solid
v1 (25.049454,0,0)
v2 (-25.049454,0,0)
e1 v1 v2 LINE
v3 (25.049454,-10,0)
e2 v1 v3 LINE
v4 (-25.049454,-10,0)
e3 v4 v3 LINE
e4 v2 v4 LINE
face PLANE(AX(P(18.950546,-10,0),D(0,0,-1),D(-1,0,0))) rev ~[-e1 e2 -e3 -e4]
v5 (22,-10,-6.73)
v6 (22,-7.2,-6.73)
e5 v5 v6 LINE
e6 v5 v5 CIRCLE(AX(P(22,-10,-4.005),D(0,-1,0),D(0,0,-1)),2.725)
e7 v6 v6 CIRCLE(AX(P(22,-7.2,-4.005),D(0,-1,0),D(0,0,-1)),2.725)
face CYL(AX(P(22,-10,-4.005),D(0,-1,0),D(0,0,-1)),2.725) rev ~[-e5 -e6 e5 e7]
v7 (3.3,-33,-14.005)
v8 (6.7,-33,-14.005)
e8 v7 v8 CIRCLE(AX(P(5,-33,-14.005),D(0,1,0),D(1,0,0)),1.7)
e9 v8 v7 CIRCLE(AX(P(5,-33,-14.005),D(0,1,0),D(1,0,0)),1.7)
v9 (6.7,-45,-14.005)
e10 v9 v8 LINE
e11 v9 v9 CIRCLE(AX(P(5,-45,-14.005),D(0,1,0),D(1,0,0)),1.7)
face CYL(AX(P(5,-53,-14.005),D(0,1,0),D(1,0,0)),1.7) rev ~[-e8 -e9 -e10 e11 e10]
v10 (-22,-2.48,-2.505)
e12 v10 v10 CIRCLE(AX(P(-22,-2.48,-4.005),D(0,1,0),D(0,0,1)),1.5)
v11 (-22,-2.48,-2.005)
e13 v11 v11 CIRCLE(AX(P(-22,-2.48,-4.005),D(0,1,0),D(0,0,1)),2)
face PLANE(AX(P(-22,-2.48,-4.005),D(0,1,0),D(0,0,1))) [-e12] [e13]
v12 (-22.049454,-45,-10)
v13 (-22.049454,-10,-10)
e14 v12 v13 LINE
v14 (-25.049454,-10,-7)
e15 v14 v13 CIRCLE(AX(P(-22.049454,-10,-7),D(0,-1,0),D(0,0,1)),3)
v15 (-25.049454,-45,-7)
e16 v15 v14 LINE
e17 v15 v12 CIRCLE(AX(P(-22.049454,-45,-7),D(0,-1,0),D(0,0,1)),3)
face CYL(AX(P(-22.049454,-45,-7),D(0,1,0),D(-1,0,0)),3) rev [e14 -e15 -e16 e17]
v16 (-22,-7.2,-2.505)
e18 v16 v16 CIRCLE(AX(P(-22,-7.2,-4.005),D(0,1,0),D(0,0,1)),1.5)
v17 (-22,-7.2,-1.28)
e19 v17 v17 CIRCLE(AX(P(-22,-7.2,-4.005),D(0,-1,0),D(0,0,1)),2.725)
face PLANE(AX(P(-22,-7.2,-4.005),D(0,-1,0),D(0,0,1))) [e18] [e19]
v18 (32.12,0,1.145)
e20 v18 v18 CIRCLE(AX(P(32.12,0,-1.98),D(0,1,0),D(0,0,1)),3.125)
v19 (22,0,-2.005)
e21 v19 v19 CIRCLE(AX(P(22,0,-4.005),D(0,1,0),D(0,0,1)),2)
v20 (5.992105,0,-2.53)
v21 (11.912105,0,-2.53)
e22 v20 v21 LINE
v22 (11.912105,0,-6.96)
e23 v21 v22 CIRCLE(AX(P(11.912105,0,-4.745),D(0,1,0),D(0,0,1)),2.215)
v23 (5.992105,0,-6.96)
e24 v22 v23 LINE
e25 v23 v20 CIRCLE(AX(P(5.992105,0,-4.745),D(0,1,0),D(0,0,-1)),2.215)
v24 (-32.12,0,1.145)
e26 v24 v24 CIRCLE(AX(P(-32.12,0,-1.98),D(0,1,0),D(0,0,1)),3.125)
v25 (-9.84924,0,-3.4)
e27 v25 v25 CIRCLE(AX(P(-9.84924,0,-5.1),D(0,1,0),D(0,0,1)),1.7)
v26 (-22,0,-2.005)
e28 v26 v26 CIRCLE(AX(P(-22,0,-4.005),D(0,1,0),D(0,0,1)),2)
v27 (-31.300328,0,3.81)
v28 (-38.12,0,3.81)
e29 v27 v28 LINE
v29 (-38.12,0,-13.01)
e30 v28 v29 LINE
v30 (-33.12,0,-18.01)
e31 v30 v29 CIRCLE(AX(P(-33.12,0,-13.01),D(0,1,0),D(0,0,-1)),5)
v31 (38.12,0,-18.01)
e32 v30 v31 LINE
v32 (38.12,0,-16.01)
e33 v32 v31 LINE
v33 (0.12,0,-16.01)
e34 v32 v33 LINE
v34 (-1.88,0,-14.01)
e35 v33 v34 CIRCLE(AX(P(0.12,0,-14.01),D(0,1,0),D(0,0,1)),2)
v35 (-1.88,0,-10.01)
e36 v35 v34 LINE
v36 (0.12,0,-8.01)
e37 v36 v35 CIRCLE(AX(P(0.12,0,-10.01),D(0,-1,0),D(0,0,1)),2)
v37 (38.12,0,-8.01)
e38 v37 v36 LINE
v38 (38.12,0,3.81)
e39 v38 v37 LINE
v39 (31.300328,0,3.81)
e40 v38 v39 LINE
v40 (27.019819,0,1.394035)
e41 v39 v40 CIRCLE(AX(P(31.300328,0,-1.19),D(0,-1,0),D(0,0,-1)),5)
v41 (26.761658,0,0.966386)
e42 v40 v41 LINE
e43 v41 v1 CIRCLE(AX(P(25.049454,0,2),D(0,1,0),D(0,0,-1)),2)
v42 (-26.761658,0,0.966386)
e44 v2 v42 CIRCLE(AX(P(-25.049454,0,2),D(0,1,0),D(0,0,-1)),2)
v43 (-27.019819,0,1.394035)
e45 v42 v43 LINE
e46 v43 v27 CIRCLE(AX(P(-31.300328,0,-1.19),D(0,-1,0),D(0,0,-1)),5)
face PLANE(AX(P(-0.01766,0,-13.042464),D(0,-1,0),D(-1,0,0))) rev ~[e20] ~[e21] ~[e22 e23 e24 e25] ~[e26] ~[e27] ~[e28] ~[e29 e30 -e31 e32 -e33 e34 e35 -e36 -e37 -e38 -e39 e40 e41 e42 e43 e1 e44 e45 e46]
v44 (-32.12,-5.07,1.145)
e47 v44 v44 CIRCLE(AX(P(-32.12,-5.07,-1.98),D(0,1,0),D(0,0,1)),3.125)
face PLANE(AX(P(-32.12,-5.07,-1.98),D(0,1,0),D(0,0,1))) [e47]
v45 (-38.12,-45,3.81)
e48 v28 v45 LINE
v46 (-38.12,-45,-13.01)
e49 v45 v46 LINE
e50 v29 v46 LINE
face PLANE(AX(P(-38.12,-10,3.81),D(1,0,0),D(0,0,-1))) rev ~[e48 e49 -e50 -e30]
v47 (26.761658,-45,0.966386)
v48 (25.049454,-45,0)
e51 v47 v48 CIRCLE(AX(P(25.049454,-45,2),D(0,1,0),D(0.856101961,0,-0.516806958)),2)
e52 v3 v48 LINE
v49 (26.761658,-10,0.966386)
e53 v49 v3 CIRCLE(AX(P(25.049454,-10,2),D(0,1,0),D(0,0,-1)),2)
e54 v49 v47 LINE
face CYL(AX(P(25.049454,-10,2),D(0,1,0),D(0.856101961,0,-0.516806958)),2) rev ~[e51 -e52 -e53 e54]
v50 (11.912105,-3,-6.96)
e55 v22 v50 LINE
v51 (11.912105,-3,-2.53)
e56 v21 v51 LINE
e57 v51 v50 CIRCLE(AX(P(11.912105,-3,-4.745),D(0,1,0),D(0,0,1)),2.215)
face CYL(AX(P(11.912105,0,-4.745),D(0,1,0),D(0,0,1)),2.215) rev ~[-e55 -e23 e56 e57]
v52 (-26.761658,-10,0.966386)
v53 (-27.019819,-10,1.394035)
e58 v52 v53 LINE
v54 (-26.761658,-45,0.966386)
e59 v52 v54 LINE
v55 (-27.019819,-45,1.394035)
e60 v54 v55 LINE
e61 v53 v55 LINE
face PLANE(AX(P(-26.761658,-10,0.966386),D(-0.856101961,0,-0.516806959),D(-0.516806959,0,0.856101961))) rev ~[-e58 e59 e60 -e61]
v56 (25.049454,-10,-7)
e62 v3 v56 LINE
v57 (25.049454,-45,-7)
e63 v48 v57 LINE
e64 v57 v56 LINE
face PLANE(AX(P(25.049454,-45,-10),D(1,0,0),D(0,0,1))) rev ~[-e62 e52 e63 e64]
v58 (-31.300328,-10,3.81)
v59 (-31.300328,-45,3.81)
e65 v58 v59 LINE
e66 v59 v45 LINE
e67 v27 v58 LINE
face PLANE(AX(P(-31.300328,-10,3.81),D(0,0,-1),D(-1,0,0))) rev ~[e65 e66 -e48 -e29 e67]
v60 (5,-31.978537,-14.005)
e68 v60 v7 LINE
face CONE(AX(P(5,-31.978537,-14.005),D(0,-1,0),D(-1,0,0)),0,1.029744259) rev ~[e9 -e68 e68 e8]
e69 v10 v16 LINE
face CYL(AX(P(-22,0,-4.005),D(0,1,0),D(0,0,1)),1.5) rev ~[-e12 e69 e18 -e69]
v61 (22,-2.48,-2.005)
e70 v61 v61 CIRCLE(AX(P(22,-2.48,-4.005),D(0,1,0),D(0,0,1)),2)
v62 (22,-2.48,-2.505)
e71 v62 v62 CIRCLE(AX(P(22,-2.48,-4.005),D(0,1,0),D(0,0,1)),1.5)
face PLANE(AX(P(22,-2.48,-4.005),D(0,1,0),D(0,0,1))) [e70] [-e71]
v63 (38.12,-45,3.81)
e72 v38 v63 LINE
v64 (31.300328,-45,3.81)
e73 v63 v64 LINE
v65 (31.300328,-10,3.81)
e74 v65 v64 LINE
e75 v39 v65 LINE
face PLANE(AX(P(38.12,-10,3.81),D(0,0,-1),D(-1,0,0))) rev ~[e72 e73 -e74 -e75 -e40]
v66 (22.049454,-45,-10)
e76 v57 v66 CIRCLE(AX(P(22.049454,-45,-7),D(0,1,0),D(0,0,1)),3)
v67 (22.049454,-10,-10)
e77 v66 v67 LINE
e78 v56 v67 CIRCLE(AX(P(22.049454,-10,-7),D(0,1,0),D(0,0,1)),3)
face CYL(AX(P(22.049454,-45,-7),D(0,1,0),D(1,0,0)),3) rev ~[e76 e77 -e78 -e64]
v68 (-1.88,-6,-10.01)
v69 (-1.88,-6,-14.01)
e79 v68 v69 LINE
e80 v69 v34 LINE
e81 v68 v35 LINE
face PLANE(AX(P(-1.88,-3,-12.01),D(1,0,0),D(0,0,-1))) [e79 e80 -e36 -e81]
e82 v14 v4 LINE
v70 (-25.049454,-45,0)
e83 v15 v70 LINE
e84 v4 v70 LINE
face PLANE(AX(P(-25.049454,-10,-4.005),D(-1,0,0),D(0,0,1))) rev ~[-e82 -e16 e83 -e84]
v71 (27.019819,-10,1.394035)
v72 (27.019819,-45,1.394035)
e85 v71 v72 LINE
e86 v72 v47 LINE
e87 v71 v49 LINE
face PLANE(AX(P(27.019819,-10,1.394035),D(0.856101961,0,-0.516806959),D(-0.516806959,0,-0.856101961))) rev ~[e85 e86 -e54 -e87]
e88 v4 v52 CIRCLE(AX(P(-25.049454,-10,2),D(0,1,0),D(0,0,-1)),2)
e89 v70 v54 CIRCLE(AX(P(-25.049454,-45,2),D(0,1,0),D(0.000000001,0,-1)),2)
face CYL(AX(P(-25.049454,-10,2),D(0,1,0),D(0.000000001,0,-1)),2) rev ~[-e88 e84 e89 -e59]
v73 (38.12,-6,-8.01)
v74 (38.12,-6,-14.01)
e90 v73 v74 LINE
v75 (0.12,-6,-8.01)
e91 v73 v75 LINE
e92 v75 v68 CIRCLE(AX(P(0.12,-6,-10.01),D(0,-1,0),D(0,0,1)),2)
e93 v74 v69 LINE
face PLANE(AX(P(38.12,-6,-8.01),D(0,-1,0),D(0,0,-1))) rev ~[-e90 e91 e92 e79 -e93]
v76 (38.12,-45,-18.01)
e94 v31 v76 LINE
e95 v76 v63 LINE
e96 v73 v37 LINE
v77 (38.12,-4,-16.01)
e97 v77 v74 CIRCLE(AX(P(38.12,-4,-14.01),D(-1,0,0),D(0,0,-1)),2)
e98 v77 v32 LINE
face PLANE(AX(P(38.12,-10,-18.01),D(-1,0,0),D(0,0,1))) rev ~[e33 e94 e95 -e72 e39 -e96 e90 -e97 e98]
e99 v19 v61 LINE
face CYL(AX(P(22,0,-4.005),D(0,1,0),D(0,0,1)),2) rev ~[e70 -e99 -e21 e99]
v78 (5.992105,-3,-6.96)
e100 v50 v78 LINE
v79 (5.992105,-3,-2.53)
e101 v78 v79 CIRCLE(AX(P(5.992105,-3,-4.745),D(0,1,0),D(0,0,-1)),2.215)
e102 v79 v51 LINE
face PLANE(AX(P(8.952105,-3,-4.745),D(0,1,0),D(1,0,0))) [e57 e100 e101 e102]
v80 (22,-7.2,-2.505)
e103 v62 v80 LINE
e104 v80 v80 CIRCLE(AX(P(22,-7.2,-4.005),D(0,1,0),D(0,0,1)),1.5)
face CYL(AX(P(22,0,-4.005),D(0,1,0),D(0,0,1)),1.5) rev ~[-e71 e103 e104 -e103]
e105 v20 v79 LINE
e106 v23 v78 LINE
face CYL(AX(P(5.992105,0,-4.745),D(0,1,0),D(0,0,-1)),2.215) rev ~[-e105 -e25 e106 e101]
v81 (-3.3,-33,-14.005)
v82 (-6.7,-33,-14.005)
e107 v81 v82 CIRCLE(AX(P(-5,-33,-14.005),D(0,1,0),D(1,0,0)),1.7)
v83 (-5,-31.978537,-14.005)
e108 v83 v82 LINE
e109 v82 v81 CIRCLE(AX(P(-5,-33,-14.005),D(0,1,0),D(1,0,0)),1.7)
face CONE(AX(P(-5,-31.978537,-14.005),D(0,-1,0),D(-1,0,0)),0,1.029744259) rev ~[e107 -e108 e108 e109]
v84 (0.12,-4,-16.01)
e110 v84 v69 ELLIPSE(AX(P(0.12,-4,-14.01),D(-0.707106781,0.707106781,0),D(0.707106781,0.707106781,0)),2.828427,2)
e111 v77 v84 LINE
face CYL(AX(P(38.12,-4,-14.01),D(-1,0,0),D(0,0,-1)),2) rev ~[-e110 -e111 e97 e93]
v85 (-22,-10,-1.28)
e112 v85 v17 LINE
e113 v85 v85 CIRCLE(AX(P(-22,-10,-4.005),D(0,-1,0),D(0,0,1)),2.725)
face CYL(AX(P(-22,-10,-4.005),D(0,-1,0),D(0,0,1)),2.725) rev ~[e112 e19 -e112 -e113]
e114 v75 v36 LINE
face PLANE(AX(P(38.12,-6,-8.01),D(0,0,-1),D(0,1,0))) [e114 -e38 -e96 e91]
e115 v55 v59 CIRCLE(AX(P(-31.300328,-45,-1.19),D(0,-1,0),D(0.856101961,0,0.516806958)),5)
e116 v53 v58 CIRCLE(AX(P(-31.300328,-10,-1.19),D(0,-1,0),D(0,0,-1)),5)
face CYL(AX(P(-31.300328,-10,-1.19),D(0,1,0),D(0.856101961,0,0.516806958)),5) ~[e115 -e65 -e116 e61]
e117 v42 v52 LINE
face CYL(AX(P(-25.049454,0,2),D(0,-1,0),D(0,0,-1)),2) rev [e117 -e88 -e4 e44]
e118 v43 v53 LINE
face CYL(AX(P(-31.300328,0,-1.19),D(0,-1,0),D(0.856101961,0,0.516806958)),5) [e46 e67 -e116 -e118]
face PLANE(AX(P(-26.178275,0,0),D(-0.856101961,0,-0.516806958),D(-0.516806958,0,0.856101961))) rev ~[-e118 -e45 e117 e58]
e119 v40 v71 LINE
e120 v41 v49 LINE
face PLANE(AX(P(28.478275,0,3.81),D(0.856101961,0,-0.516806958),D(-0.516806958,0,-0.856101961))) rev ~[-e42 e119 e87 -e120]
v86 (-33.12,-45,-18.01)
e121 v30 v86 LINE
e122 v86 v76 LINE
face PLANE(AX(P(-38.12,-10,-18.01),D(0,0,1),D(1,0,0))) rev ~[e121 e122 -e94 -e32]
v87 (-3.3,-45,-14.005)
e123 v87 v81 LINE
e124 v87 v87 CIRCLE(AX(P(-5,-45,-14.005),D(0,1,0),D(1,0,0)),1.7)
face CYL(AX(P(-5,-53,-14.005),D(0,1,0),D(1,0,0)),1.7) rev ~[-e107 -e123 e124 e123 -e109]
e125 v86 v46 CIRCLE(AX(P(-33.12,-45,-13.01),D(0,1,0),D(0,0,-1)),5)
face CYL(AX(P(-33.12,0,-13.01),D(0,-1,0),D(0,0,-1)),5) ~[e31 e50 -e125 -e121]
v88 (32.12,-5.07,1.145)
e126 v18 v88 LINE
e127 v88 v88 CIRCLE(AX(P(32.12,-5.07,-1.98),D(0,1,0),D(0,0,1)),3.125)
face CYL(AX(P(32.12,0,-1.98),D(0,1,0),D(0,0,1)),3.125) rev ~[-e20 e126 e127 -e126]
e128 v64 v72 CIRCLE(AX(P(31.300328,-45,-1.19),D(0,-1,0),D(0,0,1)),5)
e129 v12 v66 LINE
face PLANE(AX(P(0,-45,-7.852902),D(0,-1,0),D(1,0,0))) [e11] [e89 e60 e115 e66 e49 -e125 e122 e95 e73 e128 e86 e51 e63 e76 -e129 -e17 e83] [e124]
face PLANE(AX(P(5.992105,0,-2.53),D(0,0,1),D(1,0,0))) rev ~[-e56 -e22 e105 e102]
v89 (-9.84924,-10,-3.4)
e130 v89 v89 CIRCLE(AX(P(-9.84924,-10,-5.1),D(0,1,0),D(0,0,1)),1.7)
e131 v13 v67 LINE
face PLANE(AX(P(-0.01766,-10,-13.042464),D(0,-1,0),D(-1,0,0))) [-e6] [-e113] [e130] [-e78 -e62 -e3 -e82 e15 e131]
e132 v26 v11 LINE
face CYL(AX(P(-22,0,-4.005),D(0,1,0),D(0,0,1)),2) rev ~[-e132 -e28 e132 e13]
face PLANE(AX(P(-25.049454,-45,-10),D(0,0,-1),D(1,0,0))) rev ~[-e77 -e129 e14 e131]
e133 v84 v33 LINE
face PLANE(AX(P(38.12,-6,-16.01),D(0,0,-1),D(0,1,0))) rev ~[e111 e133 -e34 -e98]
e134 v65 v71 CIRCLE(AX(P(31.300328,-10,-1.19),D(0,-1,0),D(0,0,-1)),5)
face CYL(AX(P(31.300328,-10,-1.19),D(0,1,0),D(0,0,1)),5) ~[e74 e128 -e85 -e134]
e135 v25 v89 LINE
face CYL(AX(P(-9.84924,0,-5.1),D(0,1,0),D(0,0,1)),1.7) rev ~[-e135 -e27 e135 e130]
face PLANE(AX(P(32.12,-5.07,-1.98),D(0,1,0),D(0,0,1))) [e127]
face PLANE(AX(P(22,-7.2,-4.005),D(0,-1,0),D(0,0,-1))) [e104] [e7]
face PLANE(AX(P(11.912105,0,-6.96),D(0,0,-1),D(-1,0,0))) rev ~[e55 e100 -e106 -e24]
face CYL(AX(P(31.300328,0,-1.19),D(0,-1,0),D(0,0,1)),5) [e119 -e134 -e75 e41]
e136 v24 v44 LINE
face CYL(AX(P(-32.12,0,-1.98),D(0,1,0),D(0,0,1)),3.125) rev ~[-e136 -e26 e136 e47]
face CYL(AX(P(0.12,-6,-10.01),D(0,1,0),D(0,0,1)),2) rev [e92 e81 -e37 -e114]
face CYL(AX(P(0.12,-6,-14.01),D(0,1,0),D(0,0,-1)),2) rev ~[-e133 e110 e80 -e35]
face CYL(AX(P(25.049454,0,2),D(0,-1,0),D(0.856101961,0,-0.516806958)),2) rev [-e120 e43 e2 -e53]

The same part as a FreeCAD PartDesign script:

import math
import FreeCAD as App
import Part
import Sketcher
from FreeCAD import Vector


def edges_at(feature, points):
    """Names of the edges that pass closest to the given points."""
    edges = feature.Shape.Edges
    near = lambda p: min(range(len(edges)), key=lambda i: edges[i].distToShape(Part.Vertex(*p))[0])
    return sorted({f"Edge{near(p) + 1}" for p in points})

doc = App.newDocument("Part")
body = doc.addObject("PartDesign::Body", "Body")

sketch1 = body.newObject("Sketcher::SketchObject", "Sketch")
sketch1.AttachmentSupport = (doc.getObject("XZ_Plane"), [""])
sketch1.MapMode = "FlatFace"
sketch1.addGeometry([
    Part.ArcOfCircle(Part.Circle(Vector(-9.8, -5.1, 0), Vector(0, 0, 1), 4.2), math.radians(-112), math.radians(-68)),
    Part.ArcOfCircle(Part.Circle(Vector(-16.4, -21.4, 0), Vector(0, 0, 1), 13.4), math.radians(68), math.radians(90)),
    Part.LineSegment(Vector(-16.4, -8, 0), Vector(-38.1, -8, 0)),
    Part.LineSegment(Vector(-38.1, -8, 0), Vector(-38.1, 3.8, 0)),
    Part.LineSegment(Vector(-38.1, 3.8, 0), Vector(-28.5, 3.8, 0)),
    Part.LineSegment(Vector(-28.5, 3.8, 0), Vector(-26.2, 0, 0)),
    Part.LineSegment(Vector(-26.2, 0, 0), Vector(26.2, 0, 0)),
    Part.LineSegment(Vector(26.2, 0, 0), Vector(28.5, 3.8, 0)),
    Part.LineSegment(Vector(28.5, 3.8, 0), Vector(38.1, 3.8, 0)),
    Part.LineSegment(Vector(38.1, 3.8, 0), Vector(38.1, -8, 0)),
    Part.LineSegment(Vector(38.1, -8, 0), Vector(-3.3, -8, 0)),
    Part.ArcOfCircle(Part.Circle(Vector(-3.3, -21.4, 0), Vector(0, 0, 1), 13.4), math.radians(90), math.radians(112)),
], False)
sketch1.addConstraint([
    Sketcher.Constraint("Tangent", 0, 1, 1, 1),
    Sketcher.Constraint("Tangent", 1, 2, 2, 1),
    Sketcher.Constraint("Coincident", 2, 2, 3, 1),
    Sketcher.Constraint("Coincident", 3, 2, 4, 1),
    Sketcher.Constraint("Coincident", 4, 2, 5, 1),
    Sketcher.Constraint("Coincident", 5, 2, 6, 1),
    Sketcher.Constraint("Coincident", 6, 2, 7, 1),
    Sketcher.Constraint("Coincident", 7, 2, 8, 1),
    Sketcher.Constraint("Coincident", 8, 2, 9, 1),
    Sketcher.Constraint("Coincident", 9, 2, 10, 1),
    Sketcher.Constraint("Tangent", 10, 2, 11, 1),
    Sketcher.Constraint("Tangent", 11, 2, 0, 2),
    Sketcher.Constraint("Horizontal", 2),
    Sketcher.Constraint("Vertical", 3),
    Sketcher.Constraint("Horizontal", 4),
    Sketcher.Constraint("Horizontal", 6),
    Sketcher.Constraint("Horizontal", 8),
    Sketcher.Constraint("Vertical", 9),
    Sketcher.Constraint("Horizontal", 10),
    Sketcher.Constraint("Equal", 1, 11),
    Sketcher.Constraint("Symmetric", 5, 2, 6, 2, -1, 1),
    Sketcher.Constraint("Symmetric", 4, 2, 7, 2, -2),
    Sketcher.Constraint("Symmetric", 2, 2, 9, 2, -2),
    Sketcher.Constraint("Radius", 0, 4.18),
    Sketcher.Constraint("DistanceX", 1, 3, 0, 1, 5.0),
    Sketcher.Constraint("DistanceY", 3, 1, 3, 2, 11.82),
    Sketcher.Constraint("DistanceY", 0, 3, -1, 1, 5.1),
    Sketcher.Constraint("DistanceX", 4, 2, 5, 2, 2.3),
    Sketcher.Constraint("DistanceY", 1, 2, -1, 1, 8.01),
    Sketcher.Constraint("DistanceX", 2, 2, -1, 1, 38.12),
    Sketcher.Constraint("DistanceX", 6, 1, 6, 2, 52.35655),
    Sketcher.Constraint("DistanceX", 2, 2, 2, 1, 21.710755),
])
pad1 = body.newObject("PartDesign::Pad", "Pad")
pad1.Profile = sketch1
pad1.Length = 10
doc.recompute()

fillet = body.newObject("PartDesign::Fillet", "Fillet")
fillet.Base = (pad1, edges_at(pad1, [(28.478, -5, 3.81), (-28.478, -5, 3.81)]))
fillet.Radius = 5
doc.recompute()

fillet2 = body.newObject("PartDesign::Fillet", "Fillet001")
fillet2.Base = (fillet, edges_at(fillet, [(26.178, -5, 0), (-26.178, -5, 0)]))
fillet2.Radius = 2

sketch2 = body.newObject("Sketcher::SketchObject", "Sketch001")
sketch2.AttachmentSupport = (doc.getObject("XZ_Plane"), [""])
sketch2.MapMode = "FlatFace"
sketch2.addGeometry([
    Part.Circle(Vector(32.1, -2, 0), Vector(0, 0, 1), 3.1),
    Part.Circle(Vector(-32.1, -2, 0), Vector(0, 0, 1), 3.1),
], False)
sketch2.addConstraint([
    Sketcher.Constraint("Equal", 0, 1),
    Sketcher.Constraint("Symmetric", 0, 3, 1, 3, -2),
    Sketcher.Constraint("Diameter", 0, 6.25),
    Sketcher.Constraint("DistanceX", -1, 1, 0, 3, 32.12),
    Sketcher.Constraint("DistanceY", 0, 3, -1, 1, 1.98),
])
pocket1 = body.newObject("PartDesign::Pocket", "Pocket")
pocket1.Profile = sketch2
pocket1.Length = 5.07
pocket1.Reversed = True

sketch3 = body.newObject("Sketcher::SketchObject", "Sketch002")
sketch3.AttachmentSupport = (doc.getObject("XZ_Plane"), [""])
sketch3.MapMode = "FlatFace"
sketch3.addGeometry(Part.Circle(Vector(-9.8, -5.1, 0), Vector(0, 0, 1), 1.7), False)
sketch3.addConstraint([
    Sketcher.Constraint("Diameter", 0, 3.4),
    Sketcher.Constraint("DistanceY", 0, 3, -1, 1, 5.1),
    Sketcher.Constraint("DistanceX", 0, 3, -1, 1, 9.84924),
])
pocket2 = body.newObject("PartDesign::Pocket", "Pocket001")
pocket2.Profile = sketch3
pocket2.Length = 10
pocket2.Reversed = True

sketch4 = body.newObject("Sketcher::SketchObject", "Sketch003")
sketch4.AttachmentSupport = (doc.getObject("XZ_Plane"), [""])
sketch4.MapMode = "FlatFace"
sketch4.addGeometry([
    Part.LineSegment(Vector(6, -2.5, 0), Vector(11.9, -2.5, 0)),
    Part.ArcOfCircle(Part.Circle(Vector(11.9, -4.7, 0), Vector(0, 0, 1), 2.2), math.radians(-90), math.radians(90)),
    Part.LineSegment(Vector(11.9, -7, 0), Vector(6, -7, 0)),
    Part.ArcOfCircle(Part.Circle(Vector(6, -4.7, 0), Vector(0, 0, 1), 2.2), math.radians(90), math.radians(270)),
], False)
sketch4.addConstraint([
    Sketcher.Constraint("Tangent", 0, 2, 1, 2),
    Sketcher.Constraint("Tangent", 1, 1, 2, 1),
    Sketcher.Constraint("Tangent", 2, 2, 3, 2),
    Sketcher.Constraint("Tangent", 3, 1, 0, 1),
    Sketcher.Constraint("Horizontal", 0),
    Sketcher.Constraint("Horizontal", 2),
    Sketcher.Constraint("Radius", 1, 2.215),
    Sketcher.Constraint("DistanceX", 0, 1, 0, 2, 5.92),
    Sketcher.Constraint("DistanceY", 0, 2, -1, 1, 2.53),
    Sketcher.Constraint("DistanceX", -1, 1, 1, 3, 11.912105),
])
pocket3 = body.newObject("PartDesign::Pocket", "Pocket002")
pocket3.Profile = sketch4
pocket3.Length = 3
pocket3.Reversed = True

sketch5 = body.newObject("Sketcher::SketchObject", "Sketch004")
sketch5.AttachmentSupport = (doc.getObject("XZ_Plane"), [""])
sketch5.MapMode = "FlatFace"
sketch5.addGeometry([
    Part.Circle(Vector(-22, -4, 0), Vector(0, 0, 1), 2),
    Part.Circle(Vector(22, -4, 0), Vector(0, 0, 1), 2),
], False)
sketch5.addConstraint([
    Sketcher.Constraint("Equal", 0, 1),
    Sketcher.Constraint("Symmetric", 0, 3, 1, 3, -2),
    Sketcher.Constraint("Diameter", 0, 4.0),
    Sketcher.Constraint("DistanceX", 0, 3, -1, 1, 22.0),
    Sketcher.Constraint("DistanceY", 0, 3, -1, 1, 4.005),
])
pocket4 = body.newObject("PartDesign::Pocket", "Pocket003")
pocket4.Profile = sketch5
pocket4.Length = 2.48
pocket4.Reversed = True

sketch6 = body.newObject("Sketcher::SketchObject", "Sketch005")
sketch6.AttachmentSupport = (doc.getObject("XZ_Plane"), [""])
sketch6.MapMode = "FlatFace"
sketch6.addGeometry([
    Part.Circle(Vector(-22, -4, 0), Vector(0, 0, 1), 1.5),
    Part.Circle(Vector(22, -4, 0), Vector(0, 0, 1), 1.5),
], False)
sketch6.addConstraint([
    Sketcher.Constraint("Equal", 0, 1),
    Sketcher.Constraint("Symmetric", 0, 3, 1, 3, -2),
    Sketcher.Constraint("Diameter", 0, 3.0),
    Sketcher.Constraint("DistanceX", 0, 3, -1, 1, 22.0),
    Sketcher.Constraint("DistanceY", 0, 3, -1, 1, 4.005),
])
pocket5 = body.newObject("PartDesign::Pocket", "Pocket004")
pocket5.Profile = sketch6
pocket5.Length = 10
pocket5.Reversed = True

sketch7 = body.newObject("Sketcher::SketchObject", "Sketch006")
sketch7.AttachmentSupport = (doc.getObject("XZ_Plane"), [""])
sketch7.MapMode = "FlatFace"
sketch7.AttachmentOffset = App.Placement(Vector(0, 0, 10), App.Rotation())
sketch7.addGeometry([
    Part.Circle(Vector(22, -4, 0), Vector(0, 0, 1), 2.7),
    Part.Circle(Vector(-22, -4, 0), Vector(0, 0, 1), 2.7),
], False)
sketch7.addConstraint([
    Sketcher.Constraint("Equal", 0, 1),
    Sketcher.Constraint("Symmetric", 0, 3, 1, 3, -2),
    Sketcher.Constraint("Diameter", 0, 5.45),
    Sketcher.Constraint("DistanceX", -1, 1, 0, 3, 22.0),
    Sketcher.Constraint("DistanceY", 0, 3, -1, 1, 4.005),
])
pocket6 = body.newObject("PartDesign::Pocket", "Pocket005")
pocket6.Profile = sketch7
pocket6.Length = 2.8

sketch8 = body.newObject("Sketcher::SketchObject", "Sketch007")
sketch8.AttachmentSupport = (doc.getObject("XZ_Plane"), [""])
sketch8.MapMode = "FlatFace"
sketch8.addGeometry([
    Part.LineSegment(Vector(-38.1, -18, 0), Vector(-38.1, -8, 0)),
    Part.LineSegment(Vector(-38.1, -8, 0), Vector(-16.4, -8, 0)),
    Part.ArcOfCircle(Part.Circle(Vector(-16.4, -21.4, 0), Vector(0, 0, 1), 13.4), math.radians(68), math.radians(90)),
    Part.ArcOfCircle(Part.Circle(Vector(-9.8, -5.1, 0), Vector(0, 0, 1), 4.2), math.radians(-112), math.radians(-68)),
    Part.ArcOfCircle(Part.Circle(Vector(-3.3, -21.4, 0), Vector(0, 0, 1), 13.4), math.radians(90), math.radians(112)),
    Part.LineSegment(Vector(-3.3, -8, 0), Vector(38.1, -8, 0)),
    Part.LineSegment(Vector(38.1, -8, 0), Vector(38.1, -18, 0)),
    Part.LineSegment(Vector(38.1, -18, 0), Vector(-38.1, -18, 0)),
], False)
sketch8.addConstraint([
    Sketcher.Constraint("Coincident", 0, 2, 1, 1),
    Sketcher.Constraint("Tangent", 1, 2, 2, 2),
    Sketcher.Constraint("Tangent", 2, 1, 3, 1),
    Sketcher.Constraint("Tangent", 3, 2, 4, 2),
    Sketcher.Constraint("Tangent", 4, 1, 5, 1),
    Sketcher.Constraint("Coincident", 5, 2, 6, 1),
    Sketcher.Constraint("Coincident", 6, 2, 7, 1),
    Sketcher.Constraint("Coincident", 7, 2, 0, 1),
    Sketcher.Constraint("Vertical", 0),
    Sketcher.Constraint("Horizontal", 1),
    Sketcher.Constraint("Horizontal", 5),
    Sketcher.Constraint("Vertical", 6),
    Sketcher.Constraint("Horizontal", 7),
    Sketcher.Constraint("Equal", 2, 4),
    Sketcher.Constraint("Symmetric", 0, 2, 5, 2, -2),
    Sketcher.Constraint("DistanceY", 0, 1, 0, 2, 10.0),
    Sketcher.Constraint("Radius", 3, 4.18),
    Sketcher.Constraint("DistanceX", 1, 2, 2, 1, 5.0),
    Sketcher.Constraint("DistanceX", 7, 2, 7, 1, 76.24),
    Sketcher.Constraint("DistanceY", 3, 3, -1, 1, 5.1),
    Sketcher.Constraint("DistanceY", 0, 2, -1, 1, 8.01),
    Sketcher.Constraint("DistanceX", 1, 1, 1, 2, 21.710755),
])
pad2 = body.newObject("PartDesign::Pad", "Pad001")
pad2.Profile = sketch8
pad2.Length = 10

sketch9 = body.newObject("Sketcher::SketchObject", "Sketch008")
sketch9.AttachmentSupport = (doc.getObject("XZ_Plane"), [""])
sketch9.MapMode = "FlatFace"
sketch9.AttachmentOffset = App.Placement(Vector(0, 0, 10), App.Rotation())
sketch9.addGeometry([
    Part.LineSegment(Vector(18.95, 0, 0), Vector(-18.95, 0, 0)),
    Part.LineSegment(Vector(-18.95, 0, 0), Vector(-18.95, -4, 0)),
    Part.ArcOfCircle(Part.Circle(Vector(-22, -4, 0), Vector(0, 0, 1), 3.05), math.radians(180), math.radians(360)),
    Part.LineSegment(Vector(-25.05, -4, 0), Vector(-25.05, 0, 0)),
    Part.ArcOfCircle(Part.Circle(Vector(-25.05, 2, 0), Vector(0, 0, 1), 2), math.radians(-149), math.radians(-90)),
    Part.LineSegment(Vector(-26.76, 0.97, 0), Vector(-27.02, 1.39, 0)),
    Part.ArcOfCircle(Part.Circle(Vector(-31.3, -1.19, 0), Vector(0, 0, 1), 5), math.radians(31), math.radians(90)),
    Part.LineSegment(Vector(-31.3, 3.81, 0), Vector(-38.12, 3.81, 0)),
    Part.LineSegment(Vector(-38.12, 3.81, 0), Vector(-38.12, -18.01, 0)),
    Part.LineSegment(Vector(-38.12, -18.01, 0), Vector(38.12, -18.01, 0)),
    Part.LineSegment(Vector(38.12, -18.01, 0), Vector(38.12, 3.81, 0)),
    Part.LineSegment(Vector(38.12, 3.81, 0), Vector(31.3, 3.81, 0)),
    Part.ArcOfCircle(Part.Circle(Vector(31.3, -1.19, 0), Vector(0, 0, 1), 5), math.radians(90), math.radians(149)),
    Part.LineSegment(Vector(27.02, 1.39, 0), Vector(26.76, 0.97, 0)),
    Part.ArcOfCircle(Part.Circle(Vector(25.05, 2, 0), Vector(0, 0, 1), 2), math.radians(-90), math.radians(-31)),
    Part.LineSegment(Vector(25.05, 0, 0), Vector(25.05, -4, 0)),
    Part.ArcOfCircle(Part.Circle(Vector(22, -4, 0), Vector(0, 0, 1), 3.05), math.radians(180), math.radians(360)),
    Part.LineSegment(Vector(18.95, -4, 0), Vector(18.95, 0, 0)),
], False)
sketch9.addConstraint([
    Sketcher.Constraint("Coincident", 0, 2, 1, 1),
    Sketcher.Constraint("Tangent", 1, 2, 2, 2),
    Sketcher.Constraint("Tangent", 2, 1, 3, 1),
    Sketcher.Constraint("Coincident", 3, 2, 4, 2),
    Sketcher.Constraint("Tangent", 4, 1, 5, 1),
    Sketcher.Constraint("Tangent", 5, 2, 6, 1),
    Sketcher.Constraint("Tangent", 6, 2, 7, 1),
    Sketcher.Constraint("Coincident", 7, 2, 8, 1),
    Sketcher.Constraint("Coincident", 8, 2, 9, 1),
    Sketcher.Constraint("Coincident", 9, 2, 10, 1),
    Sketcher.Constraint("Coincident", 10, 2, 11, 1),
    Sketcher.Constraint("Tangent", 11, 2, 12, 1),
    Sketcher.Constraint("Tangent", 12, 2, 13, 1),
    Sketcher.Constraint("Tangent", 13, 2, 14, 2),
    Sketcher.Constraint("Coincident", 14, 1, 15, 1),
    Sketcher.Constraint("Tangent", 15, 2, 16, 2),
    Sketcher.Constraint("Tangent", 16, 1, 17, 1),
    Sketcher.Constraint("Coincident", 17, 2, 0, 1),
    Sketcher.Constraint("Horizontal", 0),
    Sketcher.Constraint("Vertical", 1),
    Sketcher.Constraint("Vertical", 3),
    Sketcher.Constraint("Horizontal", 7),
    Sketcher.Constraint("Vertical", 8),
    Sketcher.Constraint("Horizontal", 9),
    Sketcher.Constraint("Vertical", 10),
    Sketcher.Constraint("Horizontal", 11),
    Sketcher.Constraint("Vertical", 15),
    Sketcher.Constraint("Vertical", 17),
    Sketcher.Constraint("Equal", 6, 12),
    Sketcher.Constraint("Equal", 4, 14),
    Sketcher.Constraint("Equal", 2, 16),
    Sketcher.Constraint("Symmetric", 3, 2, 14, 1, -1, 1),
    Sketcher.Constraint("Symmetric", 6, 3, 12, 3, -2),
    Sketcher.Constraint("Symmetric", 4, 3, 14, 3, -2),
    Sketcher.Constraint("PointOnObject", 0, 2, -1),
    Sketcher.Constraint("Horizontal", 2, 3, 16, 3),
    Sketcher.Constraint("Vertical", 4, 3, 2, 1),
    Sketcher.Constraint("Equal", 7, 11),
    Sketcher.Constraint("Radius", 4, 2.0),
    Sketcher.Constraint("Radius", 6, 5.0),
    Sketcher.Constraint("DistanceX", 2, 3, -1, 1, 22.0),
    Sketcher.Constraint("DistanceX", 9, 1, 9, 2, 76.24),
    Sketcher.Constraint("DistanceY", 8, 2, 8, 1, 21.82),
    Sketcher.Constraint("DistanceY", 1, 2, 1, 1, 4.005),
    Sketcher.Constraint("DistanceY", 6, 3, -1, 1, 1.19),
    Sketcher.Constraint("Radius", 2, 3.049454),
    Sketcher.Constraint("DistanceX", 7, 2, 7, 1, 6.819672),
])
pad3 = body.newObject("PartDesign::Pad", "Pad002")
pad3.Profile = sketch9
pad3.Length = 35
doc.recompute()

fillet3 = body.newObject("PartDesign::Fillet", "Fillet002")
fillet3.Base = (pad3, edges_at(pad3, [(-38.12, -22.5, -18.01)]))
fillet3.Radius = 5

sketch10 = body.newObject("Sketcher::SketchObject", "Sketch009")
sketch10.AttachmentSupport = (doc.getObject("YZ_Plane"), [""])
sketch10.MapMode = "FlatFace"
sketch10.AttachmentOffset = App.Placement(Vector(0, 0, 38.12), App.Rotation())
sketch10.addGeometry([
    Part.LineSegment(Vector(0, -8, 0), Vector(-6, -8, 0)),
    Part.LineSegment(Vector(-6, -8, 0), Vector(-6, -16, 0)),
    Part.LineSegment(Vector(-6, -16, 0), Vector(0, -16, 0)),
    Part.LineSegment(Vector(0, -16, 0), Vector(0, -8, 0)),
], False)
sketch10.addConstraint([
    Sketcher.Constraint("Coincident", 0, 2, 1, 1),
    Sketcher.Constraint("Coincident", 1, 2, 2, 1),
    Sketcher.Constraint("Coincident", 2, 2, 3, 1),
    Sketcher.Constraint("Coincident", 3, 2, 0, 1),
    Sketcher.Constraint("Horizontal", 0),
    Sketcher.Constraint("Vertical", 1),
    Sketcher.Constraint("Horizontal", 2),
    Sketcher.Constraint("Vertical", 3),
    Sketcher.Constraint("PointOnObject", 2, 2, -2),
    Sketcher.Constraint("DistanceX", 0, 2, 0, 1, 6.0),
    Sketcher.Constraint("DistanceY", 1, 2, 1, 1, 8.0),
    Sketcher.Constraint("DistanceY", 0, 2, -1, 1, 8.01),
])
pocket7 = body.newObject("PartDesign::Pocket", "Pocket006")
pocket7.Profile = sketch10
pocket7.Length = 40
doc.recompute()

fillet4 = body.newObject("PartDesign::Fillet", "Fillet003")
fillet4.Base = (pocket7, edges_at(pocket7, [(-1.88, -3, -16.01), (18.12, -6, -16.01), (-1.88, -3, -8.01)]))
fillet4.Radius = 2

sketch11 = body.newObject("Sketcher::SketchObject", "Sketch010")
sketch11.AttachmentSupport = (doc.getObject("XZ_Plane"), [""])
sketch11.MapMode = "FlatFace"
sketch11.AttachmentOffset = App.Placement(Vector(0, 0, 45), App.Rotation())
sketch11.addGeometry([
    Part.LineSegment(Vector(-25, 0, 0), Vector(-25, -10, 0)),
    Part.LineSegment(Vector(-25, -10, 0), Vector(25, -10, 0)),
    Part.LineSegment(Vector(25, -10, 0), Vector(25, 0, 0)),
    Part.LineSegment(Vector(25, 0, 0), Vector(-25, 0, 0)),
], False)
sketch11.addConstraint([
    Sketcher.Constraint("Coincident", 0, 2, 1, 1),
    Sketcher.Constraint("Coincident", 1, 2, 2, 1),
    Sketcher.Constraint("Coincident", 2, 2, 3, 1),
    Sketcher.Constraint("Coincident", 3, 2, 0, 1),
    Sketcher.Constraint("Vertical", 0),
    Sketcher.Constraint("Horizontal", 1),
    Sketcher.Constraint("Vertical", 2),
    Sketcher.Constraint("Horizontal", 3),
    Sketcher.Constraint("Symmetric", 2, 2, 3, 2, -1, 1),
    Sketcher.Constraint("DistanceY", 0, 2, 0, 1, 10.0),
    Sketcher.Constraint("DistanceX", 1, 1, 1, 2, 50.098908),
])
pocket8 = body.newObject("PartDesign::Pocket", "Pocket007")
pocket8.Profile = sketch11
pocket8.Length = 35
doc.recompute()

fillet5 = body.newObject("PartDesign::Fillet", "Fillet004")
fillet5.Base = (pocket8, edges_at(pocket8, [(-25.049, -27.5, -10), (25.049, -27.5, -10)]))
fillet5.Radius = 3

sketch12 = body.newObject("Sketcher::SketchObject", "Sketch011")
sketch12.AttachmentSupport = (doc.getObject("XZ_Plane"), [""])
sketch12.MapMode = "FlatFace"
sketch12.AttachmentOffset = App.Placement(Vector(0, 0, 53), App.Rotation())
sketch12.addGeometry([
    Part.Circle(Vector(5, -14, 0), Vector(0, 0, 1), 1.7),
    Part.Circle(Vector(-5, -14, 0), Vector(0, 0, 1), 1.7),
], False)
sketch12.addConstraint([
    Sketcher.Constraint("Equal", 0, 1),
    Sketcher.Constraint("Symmetric", 0, 3, 1, 3, -2),
    Sketcher.Constraint("Diameter", 0, 3.4),
    Sketcher.Constraint("DistanceX", -1, 1, 0, 3, 5.0),
    Sketcher.Constraint("DistanceY", 0, 3, -1, 1, 14.005),
])
doc.recompute()
hole = body.newObject("PartDesign::Hole", "Hole")
hole.Profile = sketch12
hole.ThreadType = "None"
hole.Diameter = 3.4
hole.DepthType = "Dimension"
hole.Depth = 20
hole.DrillPoint = "Angled"
hole.DrillPointAngle = 118
hole.HoleCutType = "Counterbore"
hole.HoleCutDiameter = 6.5
hole.HoleCutDepth = 3

doc.recompute()
